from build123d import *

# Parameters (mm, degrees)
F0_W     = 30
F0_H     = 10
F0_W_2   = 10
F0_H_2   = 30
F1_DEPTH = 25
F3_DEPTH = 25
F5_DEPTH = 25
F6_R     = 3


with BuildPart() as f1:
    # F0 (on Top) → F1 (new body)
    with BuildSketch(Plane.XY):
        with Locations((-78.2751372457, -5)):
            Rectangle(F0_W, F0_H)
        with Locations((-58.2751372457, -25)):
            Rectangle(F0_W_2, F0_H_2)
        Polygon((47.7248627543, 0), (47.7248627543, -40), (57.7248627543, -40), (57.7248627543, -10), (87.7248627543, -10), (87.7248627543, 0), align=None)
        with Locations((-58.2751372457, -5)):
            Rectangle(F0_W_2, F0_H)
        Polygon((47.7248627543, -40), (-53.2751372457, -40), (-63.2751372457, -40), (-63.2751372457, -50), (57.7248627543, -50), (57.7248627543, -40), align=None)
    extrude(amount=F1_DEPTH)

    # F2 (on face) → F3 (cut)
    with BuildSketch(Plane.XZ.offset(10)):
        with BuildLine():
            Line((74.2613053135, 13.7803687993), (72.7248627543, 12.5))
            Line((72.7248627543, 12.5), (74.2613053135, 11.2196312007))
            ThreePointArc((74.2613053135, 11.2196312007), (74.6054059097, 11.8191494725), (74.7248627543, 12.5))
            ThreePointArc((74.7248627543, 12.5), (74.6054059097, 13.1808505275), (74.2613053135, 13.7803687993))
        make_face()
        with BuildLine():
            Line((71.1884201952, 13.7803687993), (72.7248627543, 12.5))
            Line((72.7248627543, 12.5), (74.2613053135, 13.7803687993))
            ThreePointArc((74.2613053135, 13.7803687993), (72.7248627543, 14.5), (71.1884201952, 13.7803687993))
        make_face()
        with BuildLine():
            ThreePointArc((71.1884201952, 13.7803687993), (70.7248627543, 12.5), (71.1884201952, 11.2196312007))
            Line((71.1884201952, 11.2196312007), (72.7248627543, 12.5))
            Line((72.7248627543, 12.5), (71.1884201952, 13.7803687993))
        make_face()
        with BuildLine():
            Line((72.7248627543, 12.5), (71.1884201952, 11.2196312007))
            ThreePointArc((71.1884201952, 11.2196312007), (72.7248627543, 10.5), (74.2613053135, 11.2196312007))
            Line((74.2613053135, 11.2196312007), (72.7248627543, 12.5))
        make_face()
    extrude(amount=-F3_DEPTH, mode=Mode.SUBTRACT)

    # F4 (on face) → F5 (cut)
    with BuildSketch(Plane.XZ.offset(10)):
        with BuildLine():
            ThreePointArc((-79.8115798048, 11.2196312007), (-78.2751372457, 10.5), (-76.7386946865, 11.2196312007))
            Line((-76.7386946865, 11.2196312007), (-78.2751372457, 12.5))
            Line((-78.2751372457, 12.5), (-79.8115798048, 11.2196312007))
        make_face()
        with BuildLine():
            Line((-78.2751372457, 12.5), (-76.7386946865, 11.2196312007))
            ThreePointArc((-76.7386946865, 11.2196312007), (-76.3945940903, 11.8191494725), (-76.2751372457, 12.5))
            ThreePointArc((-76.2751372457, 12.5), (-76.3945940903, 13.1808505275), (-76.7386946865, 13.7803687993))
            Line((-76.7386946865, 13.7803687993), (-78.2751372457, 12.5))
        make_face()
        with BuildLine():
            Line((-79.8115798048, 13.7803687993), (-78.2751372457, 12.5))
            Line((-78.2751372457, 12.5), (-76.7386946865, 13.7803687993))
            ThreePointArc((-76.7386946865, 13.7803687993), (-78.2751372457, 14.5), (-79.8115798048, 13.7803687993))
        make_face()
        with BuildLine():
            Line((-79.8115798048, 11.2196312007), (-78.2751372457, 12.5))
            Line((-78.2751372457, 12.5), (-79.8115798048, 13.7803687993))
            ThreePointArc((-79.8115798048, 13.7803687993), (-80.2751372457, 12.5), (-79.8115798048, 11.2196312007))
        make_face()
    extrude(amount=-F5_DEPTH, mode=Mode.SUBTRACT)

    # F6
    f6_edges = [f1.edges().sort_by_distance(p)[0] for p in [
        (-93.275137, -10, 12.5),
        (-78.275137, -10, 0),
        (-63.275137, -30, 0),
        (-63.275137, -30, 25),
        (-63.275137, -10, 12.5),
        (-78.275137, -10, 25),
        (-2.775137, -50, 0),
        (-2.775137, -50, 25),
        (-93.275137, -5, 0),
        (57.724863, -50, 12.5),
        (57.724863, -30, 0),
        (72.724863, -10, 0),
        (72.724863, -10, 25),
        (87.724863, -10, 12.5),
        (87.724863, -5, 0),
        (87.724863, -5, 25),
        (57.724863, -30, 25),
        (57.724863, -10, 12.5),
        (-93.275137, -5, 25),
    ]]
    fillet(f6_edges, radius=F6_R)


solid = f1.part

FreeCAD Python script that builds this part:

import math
import FreeCAD as App
import Part
import Sketcher
from FreeCAD import Vector


def edges_at(feature, points):
    """Names of the edges that pass closest to the given points."""
    edges = feature.Shape.Edges
    near = lambda p: min(range(len(edges)), key=lambda i: edges[i].distToShape(Part.Vertex(*p))[0])
    return sorted({f"Edge{near(p) + 1}" for p in points})


def add_polygon(sketch, points):
    """Adds a closed chain of lines whose ends are joined by coincident constraints."""
    first, n = sketch.GeometryCount, len(points)
    for a, b in zip(points, points[1:] + points[:1]):
        sketch.addGeometry(Part.LineSegment(App.Vector(*a, 0), App.Vector(*b, 0)), False)
    for i in range(n):
        sketch.addConstraint(Sketcher.Constraint("Coincident", first + i, 2, first + (i + 1) % n, 1))

doc = App.newDocument("Part")
body = doc.addObject("PartDesign::Body", "Body")

sketch1 = body.newObject("Sketcher::SketchObject", "Sketch")
sketch1.AttachmentSupport = (doc.getObject("XY_Plane"), [""])
sketch1.MapMode = "FlatFace"
add_polygon(sketch1, [(-93, 0), (-93, -10), (-63, -10), (-63, -50), (58, -50), (58, -10), (88, -10), (88, 0), (48, 0), (48, -40), (-53, -40), (-53, 0)])
sketch1.addConstraint([
    Sketcher.Constraint("Vertical", 0),
    Sketcher.Constraint("Horizontal", 1),
    Sketcher.Constraint("Vertical", 2),
    Sketcher.Constraint("Horizontal", 3),
    Sketcher.Constraint("Vertical", 4),
    Sketcher.Constraint("Horizontal", 5),
    Sketcher.Constraint("Vertical", 6),
    Sketcher.Constraint("Horizontal", 7),
    Sketcher.Constraint("Vertical", 8),
    Sketcher.Constraint("Horizontal", 9),
    Sketcher.Constraint("Vertical", 10),
    Sketcher.Constraint("Horizontal", 11),
    Sketcher.Constraint("PointOnObject", 6, 2, -1),
    Sketcher.Constraint("PointOnObject", 10, 2, -1),
    Sketcher.Constraint("Horizontal", 1, 2, 4, 2),
    Sketcher.Constraint("Equal", 1, 5),
    Sketcher.Constraint("Equal", 7, 11),
    Sketcher.Constraint("Equal", 11, 2),
    Sketcher.Constraint("Equal", 4, 8),
    Sketcher.Constraint("DistanceX", 1, 1, 1, 2, 30.0),
    Sketcher.Constraint("DistanceX", 3, 1, 3, 2, 121.0),
    Sketcher.Constraint("DistanceX", 7, 2, 7, 1, 40.0),
    Sketcher.Constraint("DistanceY", 0, 2, 0, 1, 10.0),
    Sketcher.Constraint("DistanceX", 0, 2, -1, 1, 93.275137),
])
pad1 = body.newObject("PartDesign::Pad", "Pad")
pad1.Profile = sketch1
pad1.Length = 25

sketch2 = body.newObject("Sketcher::SketchObject", "Sketch001")
sketch2.AttachmentSupport = (doc.getObject("XZ_Plane"), [""])
sketch2.MapMode = "FlatFace"
sketch2.AttachmentOffset = App.Placement(Vector(0, 0, 10), App.Rotation())
sketch2.addGeometry([
    Part.ArcOfCircle(Part.Circle(Vector(72.7, 12.5, 0), Vector(0, 0, 1), 2), math.radians(-40), math.radians(0)),
    Part.ArcOfCircle(Part.Circle(Vector(72.7, 12.5, 0), Vector(0, 0, 1), 2), math.radians(0), math.radians(40)),
    Part.ArcOfCircle(Part.Circle(Vector(72.7, 12.5, 0), Vector(0, 0, 1), 2), math.radians(40), math.radians(140)),
    Part.ArcOfCircle(Part.Circle(Vector(72.7, 12.5, 0), Vector(0, 0, 1), 2), math.radians(140), math.radians(220)),
    Part.ArcOfCircle(Part.Circle(Vector(72.7, 12.5, 0), Vector(0, 0, 1), 2), math.radians(-140), math.radians(-40)),
], False)
sketch2.addConstraint([
    Sketcher.Constraint("Tangent", 0, 2, 1, 1),
    Sketcher.Constraint("Tangent", 1, 2, 2, 1),
    Sketcher.Constraint("Tangent", 2, 2, 3, 1),
    Sketcher.Constraint("Tangent", 3, 2, 4, 1),
    Sketcher.Constraint("Tangent", 4, 2, 0, 1),
    Sketcher.Constraint("Coincident", 2, 3, 0, 3),
    Sketcher.Constraint("Horizontal", 4, 3, 0, 2),
    Sketcher.Constraint("Horizontal", 1, 2, 2, 2),
    Sketcher.Constraint("Horizontal", 3, 2, 4, 2),
    Sketcher.Constraint("Vertical", 2, 2, 3, 2),
    Sketcher.Constraint("Radius", 0, 2.0),
    Sketcher.Constraint("DistanceY", -1, 1, 0, 3, 12.5),
    Sketcher.Constraint("DistanceY", -1, 1, 1, 2, 13.780369),
    Sketcher.Constraint("DistanceX", -1, 1, 2, 2, 71.18842),
])
pocket1 = body.newObject("PartDesign::Pocket", "Pocket")
pocket1.Profile = sketch2
pocket1.Length = 25

sketch3 = body.newObject("Sketcher::SketchObject", "Sketch002")
sketch3.AttachmentSupport = (doc.getObject("XZ_Plane"), [""])
sketch3.MapMode = "FlatFace"
sketch3.AttachmentOffset = App.Placement(Vector(0, 0, 10), App.Rotation())
sketch3.addGeometry([
    Part.ArcOfCircle(Part.Circle(Vector(-78.3, 12.5, 0), Vector(0, 0, 1), 2), math.radians(-140), math.radians(-40)),
    Part.ArcOfCircle(Part.Circle(Vector(-78.3, 12.5, 0), Vector(0, 0, 1), 2), math.radians(-40), math.radians(0)),
    Part.ArcOfCircle(Part.Circle(Vector(-78.3, 12.5, 0), Vector(0, 0, 1), 2), math.radians(0), math.radians(40)),
    Part.ArcOfCircle(Part.Circle(Vector(-78.3, 12.5, 0), Vector(0, 0, 1), 2), math.radians(40), math.radians(140)),
    Part.ArcOfCircle(Part.Circle(Vector(-78.3, 12.5, 0), Vector(0, 0, 1), 2), math.radians(140), math.radians(220)),
], False)
sketch3.addConstraint([
    Sketcher.Constraint("Tangent", 0, 2, 1, 1),
    Sketcher.Constraint("Tangent", 1, 2, 2, 1),
    Sketcher.Constraint("Tangent", 2, 2, 3, 1),
    Sketcher.Constraint("Tangent", 3, 2, 4, 1),
    Sketcher.Constraint("Tangent", 4, 2, 0, 1),
    Sketcher.Constraint("Coincident", 2, 3, 0, 3),
    Sketcher.Constraint("Horizontal", 4, 3, 1, 2),
    Sketcher.Constraint("Horizontal", 2, 2, 3, 2),
    Sketcher.Constraint("Horizontal", 0, 2, 4, 2),
    Sketcher.Constraint("Vertical", 0, 2, 2, 2),
    Sketcher.Constraint("Radius", 0, 2.0),
    Sketcher.Constraint("DistanceY", -1, 1, 0, 3, 12.5),
    Sketcher.Constraint("DistanceY", -1, 1, 0, 2, 11.219631),
    Sketcher.Constraint("DistanceX", 3, 2, -1, 1, 79.81158),
])
pocket2 = body.newObject("PartDesign::Pocket", "Pocket001")
pocket2.Profile = sketch3
pocket2.Length = 25
doc.recompute()

fillet = body.newObject("PartDesign::Fillet", "Fillet")
fillet.Base = (pocket2, edges_at(pocket2, [
    (-93.275, -10, 12.5),
    (-78.275, -10, 0),
    (-63.275, -30, 0),
    (-63.275, -30, 25),
    (-63.275, -10, 12.5),
    (-78.275, -10, 25),
    (-2.775, -50, 0),
    (-2.775, -50, 25),
    (-93.275, -5, 0),
    (57.725, -50, 12.5),
    (57.725, -30, 0),
    (72.725, -10, 0),
    (72.725, -10, 25),
    (87.725, -10, 12.5),
    (87.725, -5, 0),
    (87.725, -5, 25),
    (57.725, -30, 25),
    (57.725, -10, 12.5),
    (-93.275, -5, 25),
]))
fillet.Radius = 3

doc.recompute()
